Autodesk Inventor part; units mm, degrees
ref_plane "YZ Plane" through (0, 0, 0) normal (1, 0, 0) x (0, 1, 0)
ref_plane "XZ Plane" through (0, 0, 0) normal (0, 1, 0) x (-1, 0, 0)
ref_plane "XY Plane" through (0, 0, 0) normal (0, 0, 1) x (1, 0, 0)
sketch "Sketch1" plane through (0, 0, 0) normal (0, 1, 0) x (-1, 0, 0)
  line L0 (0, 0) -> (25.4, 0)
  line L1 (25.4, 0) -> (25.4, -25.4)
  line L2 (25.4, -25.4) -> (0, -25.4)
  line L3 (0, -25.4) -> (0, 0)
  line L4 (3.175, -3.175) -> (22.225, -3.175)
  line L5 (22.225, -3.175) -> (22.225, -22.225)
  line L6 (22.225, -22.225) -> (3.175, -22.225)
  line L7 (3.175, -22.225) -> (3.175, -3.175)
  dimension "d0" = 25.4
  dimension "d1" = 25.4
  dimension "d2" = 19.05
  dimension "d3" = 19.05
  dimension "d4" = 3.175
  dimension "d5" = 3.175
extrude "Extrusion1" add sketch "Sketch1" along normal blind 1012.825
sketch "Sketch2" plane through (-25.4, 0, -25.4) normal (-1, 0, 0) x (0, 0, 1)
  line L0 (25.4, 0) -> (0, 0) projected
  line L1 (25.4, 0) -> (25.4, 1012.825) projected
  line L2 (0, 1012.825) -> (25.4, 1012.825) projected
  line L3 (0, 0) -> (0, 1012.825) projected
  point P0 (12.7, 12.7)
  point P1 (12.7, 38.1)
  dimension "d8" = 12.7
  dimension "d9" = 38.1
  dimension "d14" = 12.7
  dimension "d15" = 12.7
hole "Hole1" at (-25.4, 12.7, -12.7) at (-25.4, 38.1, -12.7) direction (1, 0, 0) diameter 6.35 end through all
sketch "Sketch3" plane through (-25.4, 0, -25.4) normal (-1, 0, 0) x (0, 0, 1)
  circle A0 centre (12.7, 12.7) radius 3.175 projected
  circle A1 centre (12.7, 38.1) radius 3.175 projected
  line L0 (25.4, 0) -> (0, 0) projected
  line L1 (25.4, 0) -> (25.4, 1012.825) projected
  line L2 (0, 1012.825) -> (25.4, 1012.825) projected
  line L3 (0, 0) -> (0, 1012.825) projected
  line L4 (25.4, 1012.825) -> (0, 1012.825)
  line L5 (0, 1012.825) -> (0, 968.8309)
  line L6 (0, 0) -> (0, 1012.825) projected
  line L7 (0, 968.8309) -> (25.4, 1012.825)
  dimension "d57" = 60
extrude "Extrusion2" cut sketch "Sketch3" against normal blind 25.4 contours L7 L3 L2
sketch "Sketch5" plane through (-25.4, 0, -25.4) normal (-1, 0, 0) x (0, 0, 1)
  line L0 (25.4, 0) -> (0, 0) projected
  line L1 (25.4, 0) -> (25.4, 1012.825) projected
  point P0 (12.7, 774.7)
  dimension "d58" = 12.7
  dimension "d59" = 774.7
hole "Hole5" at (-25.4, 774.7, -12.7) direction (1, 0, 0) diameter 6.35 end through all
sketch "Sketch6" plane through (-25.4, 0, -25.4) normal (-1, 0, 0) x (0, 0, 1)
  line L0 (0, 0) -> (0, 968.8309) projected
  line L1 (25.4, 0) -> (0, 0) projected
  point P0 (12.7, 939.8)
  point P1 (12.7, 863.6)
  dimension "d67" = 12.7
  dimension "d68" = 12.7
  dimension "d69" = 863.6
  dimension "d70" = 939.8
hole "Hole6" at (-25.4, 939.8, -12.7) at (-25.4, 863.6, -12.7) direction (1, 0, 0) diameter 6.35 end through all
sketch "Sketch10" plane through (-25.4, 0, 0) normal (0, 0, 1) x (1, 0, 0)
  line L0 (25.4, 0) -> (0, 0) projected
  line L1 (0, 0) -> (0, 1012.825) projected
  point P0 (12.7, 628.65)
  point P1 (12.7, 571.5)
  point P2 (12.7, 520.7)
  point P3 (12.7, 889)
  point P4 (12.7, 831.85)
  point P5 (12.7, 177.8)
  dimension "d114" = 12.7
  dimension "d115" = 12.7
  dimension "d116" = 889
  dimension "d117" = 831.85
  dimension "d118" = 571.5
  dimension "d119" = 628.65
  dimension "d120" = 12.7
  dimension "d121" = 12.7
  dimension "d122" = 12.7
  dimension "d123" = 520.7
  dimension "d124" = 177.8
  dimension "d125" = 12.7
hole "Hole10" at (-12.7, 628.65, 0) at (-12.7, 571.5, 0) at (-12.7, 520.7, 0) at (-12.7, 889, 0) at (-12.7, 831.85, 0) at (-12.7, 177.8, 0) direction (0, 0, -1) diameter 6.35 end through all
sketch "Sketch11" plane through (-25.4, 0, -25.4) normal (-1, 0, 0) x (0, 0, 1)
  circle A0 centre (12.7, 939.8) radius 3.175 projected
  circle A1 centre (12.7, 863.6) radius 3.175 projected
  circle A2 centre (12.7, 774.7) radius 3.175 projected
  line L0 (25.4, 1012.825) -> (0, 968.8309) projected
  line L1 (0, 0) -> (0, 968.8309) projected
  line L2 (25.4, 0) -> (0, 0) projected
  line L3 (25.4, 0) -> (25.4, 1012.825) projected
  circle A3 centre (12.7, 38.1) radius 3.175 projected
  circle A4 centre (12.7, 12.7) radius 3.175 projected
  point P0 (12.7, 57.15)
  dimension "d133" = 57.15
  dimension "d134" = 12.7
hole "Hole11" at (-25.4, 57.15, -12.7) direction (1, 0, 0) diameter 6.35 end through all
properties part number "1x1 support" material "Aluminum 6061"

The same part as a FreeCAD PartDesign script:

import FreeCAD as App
import Part
import Sketcher
from FreeCAD import Vector
Q = App.Units.Quantity

doc = App.newDocument("Part")
body = doc.addObject("PartDesign::Body", "Body")

sketch1 = body.newObject("Sketcher::SketchObject", "Sketch")
sketch1.AttachmentSupport = (doc.getObject("XZ_Plane"), [""])
sketch1.MapMode = "FlatFace"
sketch1.addGeometry([
    Part.LineSegment(Vector(-25, 0, 0), Vector(0, 0, 0)),
    Part.LineSegment(Vector(0, 0, 0), Vector(0, -25, 0)),
    Part.LineSegment(Vector(0, -25, 0), Vector(-25, -25, 0)),
    Part.LineSegment(Vector(-25, -25, 0), Vector(-25, 0, 0)),
    Part.LineSegment(Vector(-3, -22, 0), Vector(-3, -3, 0)),
    Part.LineSegment(Vector(-3, -3, 0), Vector(-22, -3, 0)),
    Part.LineSegment(Vector(-22, -3, 0), Vector(-22, -22, 0)),
    Part.LineSegment(Vector(-22, -22, 0), Vector(-3, -22, 0)),
], False)
sketch1.addConstraint([
    Sketcher.Constraint("Coincident", 0, 2, 1, 1),
    Sketcher.Constraint("Coincident", 1, 2, 2, 1),
    Sketcher.Constraint("Coincident", 2, 2, 3, 1),
    Sketcher.Constraint("Coincident", 3, 2, 0, 1),
    Sketcher.Constraint("Coincident", 4, 2, 5, 1),
    Sketcher.Constraint("Coincident", 5, 2, 6, 1),
    Sketcher.Constraint("Coincident", 6, 2, 7, 1),
    Sketcher.Constraint("Coincident", 7, 2, 4, 1),
    Sketcher.Constraint("Horizontal", 0),
    Sketcher.Constraint("Vertical", 1),
    Sketcher.Constraint("Horizontal", 2),
    Sketcher.Constraint("Vertical", 3),
    Sketcher.Constraint("Vertical", 4),
    Sketcher.Constraint("Horizontal", 5),
    Sketcher.Constraint("Vertical", 6),
    Sketcher.Constraint("Horizontal", 7),
    Sketcher.Constraint("Coincident", 0, 2, -1, 1),
    Sketcher.Constraint("Equal", 2, 1),
    Sketcher.Constraint("Equal", 7, 4),
    Sketcher.Constraint("DistanceX", 0, 1, 0, 2, Q("1 in")),
    Sketcher.Constraint("DistanceX", 5, 2, 5, 1, Q("0.75 in")),
    Sketcher.Constraint("DistanceX", 4, 2, -1, 1, Q("0.125 in")),
    Sketcher.Constraint("DistanceY", 4, 2, -1, 1, Q("0.125 in")),
])
pad1 = body.newObject("PartDesign::Pad", "Pad")
pad1.Profile = sketch1
pad1.Length = Q("39.875 in")
pad1.Reversed = True

sketch2 = body.newObject("Sketcher::SketchObject", "Sketch001")
sketch2.AttachmentSupport = (doc.getObject("YZ_Plane"), [""])
sketch2.MapMode = "FlatFace"
sketch2.AttachmentOffset = App.Placement(Vector(0, 0, -1 * 25.4), App.Rotation())
sketch2.addGeometry([
    Part.Circle(Vector(12.7, -12.7, 0), Vector(0, 0, 1), 3.2),
    Part.Circle(Vector(38.1, -12.7, 0), Vector(0, 0, 1), 3.2),
], False)
sketch2.addConstraint([
    Sketcher.Constraint("Equal", 0, 1),
    Sketcher.Constraint("Horizontal", 0, 3, 1, 3),
    Sketcher.Constraint("Diameter", 0, Q("0.25 in")),
    Sketcher.Constraint("DistanceX", 0, 3, 1, 3, Q("1 in")),
    Sketcher.Constraint("DistanceX", -1, 1, 0, 3, Q("0.5 in")),
    Sketcher.Constraint("DistanceY", 0, 3, -1, 1, Q("0.5 in")),
])
doc.recompute()
hole = body.newObject("PartDesign::Hole", "Hole")
hole.Profile = sketch2
hole.ThreadType = "None"
hole.Diameter = Q("0.25 in")
hole.DepthType = "ThroughAll"
hole.Reversed = True

sketch3 = body.newObject("Sketcher::SketchObject", "Sketch002")
sketch3.AttachmentSupport = (doc.getObject("YZ_Plane"), [""])
sketch3.MapMode = "FlatFace"
sketch3.AttachmentOffset = App.Placement(Vector(0, 0, -1 * 25.4), App.Rotation())
sketch3.addGeometry([
    Part.LineSegment(Vector(969, -25, 0), Vector(1013, 0, 0)),
    Part.LineSegment(Vector(1013, 0, 0), Vector(1013, -25, 0)),
    Part.LineSegment(Vector(1013, -25, 0), Vector(969, -25, 0)),
], False)
sketch3.addConstraint([
    Sketcher.Constraint("Coincident", 0, 2, 1, 1),
    Sketcher.Constraint("Coincident", 1, 2, 2, 1),
    Sketcher.Constraint("Coincident", 2, 2, 0, 1),
    Sketcher.Constraint("Vertical", 1),
    Sketcher.Constraint("Horizontal", 2),
    Sketcher.Constraint("PointOnObject", 0, 2, -1),
    Sketcher.Constraint("DistanceY", 1, 2, 1, 1, Q("1 in")),
    Sketcher.Constraint("Distance", 0, Q("2 in")),
    Sketcher.Constraint("DistanceX", -1, 1, 0, 2, Q("39.875 in")),
])
pocket1 = body.newObject("PartDesign::Pocket", "Pocket")
pocket1.Profile = sketch3
pocket1.Length = Q("1 in")
pocket1.Reversed = True

sketch4 = body.newObject("Sketcher::SketchObject", "Sketch003")
sketch4.AttachmentSupport = (doc.getObject("YZ_Plane"), [""])
sketch4.MapMode = "FlatFace"
sketch4.AttachmentOffset = App.Placement(Vector(0, 0, -1 * 25.4), App.Rotation())
sketch4.addGeometry(Part.Circle(Vector(774.7, -12.7, 0), Vector(0, 0, 1), 3.2), False)
sketch4.addConstraint([
    Sketcher.Constraint("Diameter", 0, Q("0.25 in")),
    Sketcher.Constraint("DistanceX", -1, 1, 0, 3, Q("30.5 in")),
    Sketcher.Constraint("DistanceY", 0, 3, -1, 1, Q("0.5 in")),
])
doc.recompute()
hole2 = body.newObject("PartDesign::Hole", "Hole001")
hole2.Profile = sketch4
hole2.ThreadType = "None"
hole2.Diameter = Q("0.25 in")
hole2.DepthType = "ThroughAll"
hole2.Reversed = True

sketch5 = body.newObject("Sketcher::SketchObject", "Sketch004")
sketch5.AttachmentSupport = (doc.getObject("YZ_Plane"), [""])
sketch5.MapMode = "FlatFace"
sketch5.AttachmentOffset = App.Placement(Vector(0, 0, -1 * 25.4), App.Rotation())
sketch5.addGeometry([
    Part.Circle(Vector(939.8, -12.7, 0), Vector(0, 0, 1), 3.2),
    Part.Circle(Vector(863.6, -12.7, 0), Vector(0, 0, 1), 3.2),
], False)
sketch5.addConstraint([
    Sketcher.Constraint("Equal", 0, 1),
    Sketcher.Constraint("Horizontal", 0, 3, 1, 3),
    Sketcher.Constraint("Diameter", 0, Q("0.25 in")),
    Sketcher.Constraint("DistanceX", -1, 1, 0, 3, Q("37 in")),
    Sketcher.Constraint("DistanceX", -1, 1, 1, 3, Q("34 in")),
    Sketcher.Constraint("DistanceY", 0, 3, -1, 1, Q("0.5 in")),
])
doc.recompute()
hole3 = body.newObject("PartDesign::Hole", "Hole002")
hole3.Profile = sketch5
hole3.ThreadType = "None"
hole3.Diameter = Q("0.25 in")
hole3.DepthType = "ThroughAll"
hole3.Reversed = True

sketch6 = body.newObject("Sketcher::SketchObject", "Sketch005")
sketch6.AttachmentSupport = (doc.getObject("XY_Plane"), [""])
sketch6.MapMode = "FlatFace"
sketch6.addGeometry([
    Part.Circle(Vector(-12.7, 628.6, 0), Vector(0, 0, 1), 3.2),
    Part.Circle(Vector(-12.7, 571.5, 0), Vector(0, 0, 1), 3.2),
    Part.Circle(Vector(-12.7, 520.7, 0), Vector(0, 0, 1), 3.2),
    Part.Circle(Vector(-12.7, 889, 0), Vector(0, 0, 1), 3.2),
    Part.Circle(Vector(-12.7, 831.9, 0), Vector(0, 0, 1), 3.2),
    Part.Circle(Vector(-12.7, 177.8, 0), Vector(0, 0, 1), 3.2),
], False)
sketch6.addConstraint([
    Sketcher.Constraint("Equal", 0, 1),
    Sketcher.Constraint("Equal", 1, 2),
    Sketcher.Constraint("Equal", 2, 3),
    Sketcher.Constraint("Equal", 3, 4),
    Sketcher.Constraint("Equal", 4, 5),
    Sketcher.Constraint("Vertical", 0, 3, 1, 3),
    Sketcher.Constraint("Vertical", 1, 3, 2, 3),
    Sketcher.Constraint("Vertical", 2, 3, 3, 3),
    Sketcher.Constraint("Vertical", 3, 3, 4, 3),
    Sketcher.Constraint("Vertical", 4, 3, 5, 3),
    Sketcher.Constraint("Diameter", 0, Q("0.25 in")),
    Sketcher.Constraint("DistanceY", -1, 1, 3, 3, Q("35 in")),
    Sketcher.Constraint("DistanceY", -1, 1, 5, 3, Q("7 in")),
    Sketcher.Constraint("DistanceY", 2, 3, 1, 3, Q("2 in")),
    Sketcher.Constraint("DistanceY", 0, 3, 4, 3, Q("8 in")),
    Sketcher.Constraint("DistanceX", 0, 3, -1, 1, Q("0.5 in")),
    Sketcher.Constraint("DistanceY", -1, 1, 1, 3, Q("22.5 in")),
    Sketcher.Constraint("DistanceY", -1, 1, 0, 3, Q("24.75 in")),
])
doc.recompute()
hole4 = body.newObject("PartDesign::Hole", "Hole003")
hole4.Profile = sketch6
hole4.ThreadType = "None"
hole4.Diameter = Q("0.25 in")
hole4.DepthType = "ThroughAll"

sketch7 = body.newObject("Sketcher::SketchObject", "Sketch006")
sketch7.AttachmentSupport = (doc.getObject("YZ_Plane"), [""])
sketch7.MapMode = "FlatFace"
sketch7.AttachmentOffset = App.Placement(Vector(0, 0, -1 * 25.4), App.Rotation())
sketch7.addGeometry(Part.Circle(Vector(57.1, -12.7, 0), Vector(0, 0, 1), 3.2), False)
sketch7.addConstraint([
    Sketcher.Constraint("Diameter", 0, Q("0.25 in")),
    Sketcher.Constraint("DistanceY", 0, 3, -1, 1, Q("0.5 in")),
    Sketcher.Constraint("DistanceX", -1, 1, 0, 3, Q("2.25 in")),
])
doc.recompute()
hole5 = body.newObject("PartDesign::Hole", "Hole004")
hole5.Profile = sketch7
hole5.ThreadType = "None"
hole5.Diameter = Q("0.25 in")
hole5.DepthType = "ThroughAll"
hole5.Reversed = True

doc.recompute()
